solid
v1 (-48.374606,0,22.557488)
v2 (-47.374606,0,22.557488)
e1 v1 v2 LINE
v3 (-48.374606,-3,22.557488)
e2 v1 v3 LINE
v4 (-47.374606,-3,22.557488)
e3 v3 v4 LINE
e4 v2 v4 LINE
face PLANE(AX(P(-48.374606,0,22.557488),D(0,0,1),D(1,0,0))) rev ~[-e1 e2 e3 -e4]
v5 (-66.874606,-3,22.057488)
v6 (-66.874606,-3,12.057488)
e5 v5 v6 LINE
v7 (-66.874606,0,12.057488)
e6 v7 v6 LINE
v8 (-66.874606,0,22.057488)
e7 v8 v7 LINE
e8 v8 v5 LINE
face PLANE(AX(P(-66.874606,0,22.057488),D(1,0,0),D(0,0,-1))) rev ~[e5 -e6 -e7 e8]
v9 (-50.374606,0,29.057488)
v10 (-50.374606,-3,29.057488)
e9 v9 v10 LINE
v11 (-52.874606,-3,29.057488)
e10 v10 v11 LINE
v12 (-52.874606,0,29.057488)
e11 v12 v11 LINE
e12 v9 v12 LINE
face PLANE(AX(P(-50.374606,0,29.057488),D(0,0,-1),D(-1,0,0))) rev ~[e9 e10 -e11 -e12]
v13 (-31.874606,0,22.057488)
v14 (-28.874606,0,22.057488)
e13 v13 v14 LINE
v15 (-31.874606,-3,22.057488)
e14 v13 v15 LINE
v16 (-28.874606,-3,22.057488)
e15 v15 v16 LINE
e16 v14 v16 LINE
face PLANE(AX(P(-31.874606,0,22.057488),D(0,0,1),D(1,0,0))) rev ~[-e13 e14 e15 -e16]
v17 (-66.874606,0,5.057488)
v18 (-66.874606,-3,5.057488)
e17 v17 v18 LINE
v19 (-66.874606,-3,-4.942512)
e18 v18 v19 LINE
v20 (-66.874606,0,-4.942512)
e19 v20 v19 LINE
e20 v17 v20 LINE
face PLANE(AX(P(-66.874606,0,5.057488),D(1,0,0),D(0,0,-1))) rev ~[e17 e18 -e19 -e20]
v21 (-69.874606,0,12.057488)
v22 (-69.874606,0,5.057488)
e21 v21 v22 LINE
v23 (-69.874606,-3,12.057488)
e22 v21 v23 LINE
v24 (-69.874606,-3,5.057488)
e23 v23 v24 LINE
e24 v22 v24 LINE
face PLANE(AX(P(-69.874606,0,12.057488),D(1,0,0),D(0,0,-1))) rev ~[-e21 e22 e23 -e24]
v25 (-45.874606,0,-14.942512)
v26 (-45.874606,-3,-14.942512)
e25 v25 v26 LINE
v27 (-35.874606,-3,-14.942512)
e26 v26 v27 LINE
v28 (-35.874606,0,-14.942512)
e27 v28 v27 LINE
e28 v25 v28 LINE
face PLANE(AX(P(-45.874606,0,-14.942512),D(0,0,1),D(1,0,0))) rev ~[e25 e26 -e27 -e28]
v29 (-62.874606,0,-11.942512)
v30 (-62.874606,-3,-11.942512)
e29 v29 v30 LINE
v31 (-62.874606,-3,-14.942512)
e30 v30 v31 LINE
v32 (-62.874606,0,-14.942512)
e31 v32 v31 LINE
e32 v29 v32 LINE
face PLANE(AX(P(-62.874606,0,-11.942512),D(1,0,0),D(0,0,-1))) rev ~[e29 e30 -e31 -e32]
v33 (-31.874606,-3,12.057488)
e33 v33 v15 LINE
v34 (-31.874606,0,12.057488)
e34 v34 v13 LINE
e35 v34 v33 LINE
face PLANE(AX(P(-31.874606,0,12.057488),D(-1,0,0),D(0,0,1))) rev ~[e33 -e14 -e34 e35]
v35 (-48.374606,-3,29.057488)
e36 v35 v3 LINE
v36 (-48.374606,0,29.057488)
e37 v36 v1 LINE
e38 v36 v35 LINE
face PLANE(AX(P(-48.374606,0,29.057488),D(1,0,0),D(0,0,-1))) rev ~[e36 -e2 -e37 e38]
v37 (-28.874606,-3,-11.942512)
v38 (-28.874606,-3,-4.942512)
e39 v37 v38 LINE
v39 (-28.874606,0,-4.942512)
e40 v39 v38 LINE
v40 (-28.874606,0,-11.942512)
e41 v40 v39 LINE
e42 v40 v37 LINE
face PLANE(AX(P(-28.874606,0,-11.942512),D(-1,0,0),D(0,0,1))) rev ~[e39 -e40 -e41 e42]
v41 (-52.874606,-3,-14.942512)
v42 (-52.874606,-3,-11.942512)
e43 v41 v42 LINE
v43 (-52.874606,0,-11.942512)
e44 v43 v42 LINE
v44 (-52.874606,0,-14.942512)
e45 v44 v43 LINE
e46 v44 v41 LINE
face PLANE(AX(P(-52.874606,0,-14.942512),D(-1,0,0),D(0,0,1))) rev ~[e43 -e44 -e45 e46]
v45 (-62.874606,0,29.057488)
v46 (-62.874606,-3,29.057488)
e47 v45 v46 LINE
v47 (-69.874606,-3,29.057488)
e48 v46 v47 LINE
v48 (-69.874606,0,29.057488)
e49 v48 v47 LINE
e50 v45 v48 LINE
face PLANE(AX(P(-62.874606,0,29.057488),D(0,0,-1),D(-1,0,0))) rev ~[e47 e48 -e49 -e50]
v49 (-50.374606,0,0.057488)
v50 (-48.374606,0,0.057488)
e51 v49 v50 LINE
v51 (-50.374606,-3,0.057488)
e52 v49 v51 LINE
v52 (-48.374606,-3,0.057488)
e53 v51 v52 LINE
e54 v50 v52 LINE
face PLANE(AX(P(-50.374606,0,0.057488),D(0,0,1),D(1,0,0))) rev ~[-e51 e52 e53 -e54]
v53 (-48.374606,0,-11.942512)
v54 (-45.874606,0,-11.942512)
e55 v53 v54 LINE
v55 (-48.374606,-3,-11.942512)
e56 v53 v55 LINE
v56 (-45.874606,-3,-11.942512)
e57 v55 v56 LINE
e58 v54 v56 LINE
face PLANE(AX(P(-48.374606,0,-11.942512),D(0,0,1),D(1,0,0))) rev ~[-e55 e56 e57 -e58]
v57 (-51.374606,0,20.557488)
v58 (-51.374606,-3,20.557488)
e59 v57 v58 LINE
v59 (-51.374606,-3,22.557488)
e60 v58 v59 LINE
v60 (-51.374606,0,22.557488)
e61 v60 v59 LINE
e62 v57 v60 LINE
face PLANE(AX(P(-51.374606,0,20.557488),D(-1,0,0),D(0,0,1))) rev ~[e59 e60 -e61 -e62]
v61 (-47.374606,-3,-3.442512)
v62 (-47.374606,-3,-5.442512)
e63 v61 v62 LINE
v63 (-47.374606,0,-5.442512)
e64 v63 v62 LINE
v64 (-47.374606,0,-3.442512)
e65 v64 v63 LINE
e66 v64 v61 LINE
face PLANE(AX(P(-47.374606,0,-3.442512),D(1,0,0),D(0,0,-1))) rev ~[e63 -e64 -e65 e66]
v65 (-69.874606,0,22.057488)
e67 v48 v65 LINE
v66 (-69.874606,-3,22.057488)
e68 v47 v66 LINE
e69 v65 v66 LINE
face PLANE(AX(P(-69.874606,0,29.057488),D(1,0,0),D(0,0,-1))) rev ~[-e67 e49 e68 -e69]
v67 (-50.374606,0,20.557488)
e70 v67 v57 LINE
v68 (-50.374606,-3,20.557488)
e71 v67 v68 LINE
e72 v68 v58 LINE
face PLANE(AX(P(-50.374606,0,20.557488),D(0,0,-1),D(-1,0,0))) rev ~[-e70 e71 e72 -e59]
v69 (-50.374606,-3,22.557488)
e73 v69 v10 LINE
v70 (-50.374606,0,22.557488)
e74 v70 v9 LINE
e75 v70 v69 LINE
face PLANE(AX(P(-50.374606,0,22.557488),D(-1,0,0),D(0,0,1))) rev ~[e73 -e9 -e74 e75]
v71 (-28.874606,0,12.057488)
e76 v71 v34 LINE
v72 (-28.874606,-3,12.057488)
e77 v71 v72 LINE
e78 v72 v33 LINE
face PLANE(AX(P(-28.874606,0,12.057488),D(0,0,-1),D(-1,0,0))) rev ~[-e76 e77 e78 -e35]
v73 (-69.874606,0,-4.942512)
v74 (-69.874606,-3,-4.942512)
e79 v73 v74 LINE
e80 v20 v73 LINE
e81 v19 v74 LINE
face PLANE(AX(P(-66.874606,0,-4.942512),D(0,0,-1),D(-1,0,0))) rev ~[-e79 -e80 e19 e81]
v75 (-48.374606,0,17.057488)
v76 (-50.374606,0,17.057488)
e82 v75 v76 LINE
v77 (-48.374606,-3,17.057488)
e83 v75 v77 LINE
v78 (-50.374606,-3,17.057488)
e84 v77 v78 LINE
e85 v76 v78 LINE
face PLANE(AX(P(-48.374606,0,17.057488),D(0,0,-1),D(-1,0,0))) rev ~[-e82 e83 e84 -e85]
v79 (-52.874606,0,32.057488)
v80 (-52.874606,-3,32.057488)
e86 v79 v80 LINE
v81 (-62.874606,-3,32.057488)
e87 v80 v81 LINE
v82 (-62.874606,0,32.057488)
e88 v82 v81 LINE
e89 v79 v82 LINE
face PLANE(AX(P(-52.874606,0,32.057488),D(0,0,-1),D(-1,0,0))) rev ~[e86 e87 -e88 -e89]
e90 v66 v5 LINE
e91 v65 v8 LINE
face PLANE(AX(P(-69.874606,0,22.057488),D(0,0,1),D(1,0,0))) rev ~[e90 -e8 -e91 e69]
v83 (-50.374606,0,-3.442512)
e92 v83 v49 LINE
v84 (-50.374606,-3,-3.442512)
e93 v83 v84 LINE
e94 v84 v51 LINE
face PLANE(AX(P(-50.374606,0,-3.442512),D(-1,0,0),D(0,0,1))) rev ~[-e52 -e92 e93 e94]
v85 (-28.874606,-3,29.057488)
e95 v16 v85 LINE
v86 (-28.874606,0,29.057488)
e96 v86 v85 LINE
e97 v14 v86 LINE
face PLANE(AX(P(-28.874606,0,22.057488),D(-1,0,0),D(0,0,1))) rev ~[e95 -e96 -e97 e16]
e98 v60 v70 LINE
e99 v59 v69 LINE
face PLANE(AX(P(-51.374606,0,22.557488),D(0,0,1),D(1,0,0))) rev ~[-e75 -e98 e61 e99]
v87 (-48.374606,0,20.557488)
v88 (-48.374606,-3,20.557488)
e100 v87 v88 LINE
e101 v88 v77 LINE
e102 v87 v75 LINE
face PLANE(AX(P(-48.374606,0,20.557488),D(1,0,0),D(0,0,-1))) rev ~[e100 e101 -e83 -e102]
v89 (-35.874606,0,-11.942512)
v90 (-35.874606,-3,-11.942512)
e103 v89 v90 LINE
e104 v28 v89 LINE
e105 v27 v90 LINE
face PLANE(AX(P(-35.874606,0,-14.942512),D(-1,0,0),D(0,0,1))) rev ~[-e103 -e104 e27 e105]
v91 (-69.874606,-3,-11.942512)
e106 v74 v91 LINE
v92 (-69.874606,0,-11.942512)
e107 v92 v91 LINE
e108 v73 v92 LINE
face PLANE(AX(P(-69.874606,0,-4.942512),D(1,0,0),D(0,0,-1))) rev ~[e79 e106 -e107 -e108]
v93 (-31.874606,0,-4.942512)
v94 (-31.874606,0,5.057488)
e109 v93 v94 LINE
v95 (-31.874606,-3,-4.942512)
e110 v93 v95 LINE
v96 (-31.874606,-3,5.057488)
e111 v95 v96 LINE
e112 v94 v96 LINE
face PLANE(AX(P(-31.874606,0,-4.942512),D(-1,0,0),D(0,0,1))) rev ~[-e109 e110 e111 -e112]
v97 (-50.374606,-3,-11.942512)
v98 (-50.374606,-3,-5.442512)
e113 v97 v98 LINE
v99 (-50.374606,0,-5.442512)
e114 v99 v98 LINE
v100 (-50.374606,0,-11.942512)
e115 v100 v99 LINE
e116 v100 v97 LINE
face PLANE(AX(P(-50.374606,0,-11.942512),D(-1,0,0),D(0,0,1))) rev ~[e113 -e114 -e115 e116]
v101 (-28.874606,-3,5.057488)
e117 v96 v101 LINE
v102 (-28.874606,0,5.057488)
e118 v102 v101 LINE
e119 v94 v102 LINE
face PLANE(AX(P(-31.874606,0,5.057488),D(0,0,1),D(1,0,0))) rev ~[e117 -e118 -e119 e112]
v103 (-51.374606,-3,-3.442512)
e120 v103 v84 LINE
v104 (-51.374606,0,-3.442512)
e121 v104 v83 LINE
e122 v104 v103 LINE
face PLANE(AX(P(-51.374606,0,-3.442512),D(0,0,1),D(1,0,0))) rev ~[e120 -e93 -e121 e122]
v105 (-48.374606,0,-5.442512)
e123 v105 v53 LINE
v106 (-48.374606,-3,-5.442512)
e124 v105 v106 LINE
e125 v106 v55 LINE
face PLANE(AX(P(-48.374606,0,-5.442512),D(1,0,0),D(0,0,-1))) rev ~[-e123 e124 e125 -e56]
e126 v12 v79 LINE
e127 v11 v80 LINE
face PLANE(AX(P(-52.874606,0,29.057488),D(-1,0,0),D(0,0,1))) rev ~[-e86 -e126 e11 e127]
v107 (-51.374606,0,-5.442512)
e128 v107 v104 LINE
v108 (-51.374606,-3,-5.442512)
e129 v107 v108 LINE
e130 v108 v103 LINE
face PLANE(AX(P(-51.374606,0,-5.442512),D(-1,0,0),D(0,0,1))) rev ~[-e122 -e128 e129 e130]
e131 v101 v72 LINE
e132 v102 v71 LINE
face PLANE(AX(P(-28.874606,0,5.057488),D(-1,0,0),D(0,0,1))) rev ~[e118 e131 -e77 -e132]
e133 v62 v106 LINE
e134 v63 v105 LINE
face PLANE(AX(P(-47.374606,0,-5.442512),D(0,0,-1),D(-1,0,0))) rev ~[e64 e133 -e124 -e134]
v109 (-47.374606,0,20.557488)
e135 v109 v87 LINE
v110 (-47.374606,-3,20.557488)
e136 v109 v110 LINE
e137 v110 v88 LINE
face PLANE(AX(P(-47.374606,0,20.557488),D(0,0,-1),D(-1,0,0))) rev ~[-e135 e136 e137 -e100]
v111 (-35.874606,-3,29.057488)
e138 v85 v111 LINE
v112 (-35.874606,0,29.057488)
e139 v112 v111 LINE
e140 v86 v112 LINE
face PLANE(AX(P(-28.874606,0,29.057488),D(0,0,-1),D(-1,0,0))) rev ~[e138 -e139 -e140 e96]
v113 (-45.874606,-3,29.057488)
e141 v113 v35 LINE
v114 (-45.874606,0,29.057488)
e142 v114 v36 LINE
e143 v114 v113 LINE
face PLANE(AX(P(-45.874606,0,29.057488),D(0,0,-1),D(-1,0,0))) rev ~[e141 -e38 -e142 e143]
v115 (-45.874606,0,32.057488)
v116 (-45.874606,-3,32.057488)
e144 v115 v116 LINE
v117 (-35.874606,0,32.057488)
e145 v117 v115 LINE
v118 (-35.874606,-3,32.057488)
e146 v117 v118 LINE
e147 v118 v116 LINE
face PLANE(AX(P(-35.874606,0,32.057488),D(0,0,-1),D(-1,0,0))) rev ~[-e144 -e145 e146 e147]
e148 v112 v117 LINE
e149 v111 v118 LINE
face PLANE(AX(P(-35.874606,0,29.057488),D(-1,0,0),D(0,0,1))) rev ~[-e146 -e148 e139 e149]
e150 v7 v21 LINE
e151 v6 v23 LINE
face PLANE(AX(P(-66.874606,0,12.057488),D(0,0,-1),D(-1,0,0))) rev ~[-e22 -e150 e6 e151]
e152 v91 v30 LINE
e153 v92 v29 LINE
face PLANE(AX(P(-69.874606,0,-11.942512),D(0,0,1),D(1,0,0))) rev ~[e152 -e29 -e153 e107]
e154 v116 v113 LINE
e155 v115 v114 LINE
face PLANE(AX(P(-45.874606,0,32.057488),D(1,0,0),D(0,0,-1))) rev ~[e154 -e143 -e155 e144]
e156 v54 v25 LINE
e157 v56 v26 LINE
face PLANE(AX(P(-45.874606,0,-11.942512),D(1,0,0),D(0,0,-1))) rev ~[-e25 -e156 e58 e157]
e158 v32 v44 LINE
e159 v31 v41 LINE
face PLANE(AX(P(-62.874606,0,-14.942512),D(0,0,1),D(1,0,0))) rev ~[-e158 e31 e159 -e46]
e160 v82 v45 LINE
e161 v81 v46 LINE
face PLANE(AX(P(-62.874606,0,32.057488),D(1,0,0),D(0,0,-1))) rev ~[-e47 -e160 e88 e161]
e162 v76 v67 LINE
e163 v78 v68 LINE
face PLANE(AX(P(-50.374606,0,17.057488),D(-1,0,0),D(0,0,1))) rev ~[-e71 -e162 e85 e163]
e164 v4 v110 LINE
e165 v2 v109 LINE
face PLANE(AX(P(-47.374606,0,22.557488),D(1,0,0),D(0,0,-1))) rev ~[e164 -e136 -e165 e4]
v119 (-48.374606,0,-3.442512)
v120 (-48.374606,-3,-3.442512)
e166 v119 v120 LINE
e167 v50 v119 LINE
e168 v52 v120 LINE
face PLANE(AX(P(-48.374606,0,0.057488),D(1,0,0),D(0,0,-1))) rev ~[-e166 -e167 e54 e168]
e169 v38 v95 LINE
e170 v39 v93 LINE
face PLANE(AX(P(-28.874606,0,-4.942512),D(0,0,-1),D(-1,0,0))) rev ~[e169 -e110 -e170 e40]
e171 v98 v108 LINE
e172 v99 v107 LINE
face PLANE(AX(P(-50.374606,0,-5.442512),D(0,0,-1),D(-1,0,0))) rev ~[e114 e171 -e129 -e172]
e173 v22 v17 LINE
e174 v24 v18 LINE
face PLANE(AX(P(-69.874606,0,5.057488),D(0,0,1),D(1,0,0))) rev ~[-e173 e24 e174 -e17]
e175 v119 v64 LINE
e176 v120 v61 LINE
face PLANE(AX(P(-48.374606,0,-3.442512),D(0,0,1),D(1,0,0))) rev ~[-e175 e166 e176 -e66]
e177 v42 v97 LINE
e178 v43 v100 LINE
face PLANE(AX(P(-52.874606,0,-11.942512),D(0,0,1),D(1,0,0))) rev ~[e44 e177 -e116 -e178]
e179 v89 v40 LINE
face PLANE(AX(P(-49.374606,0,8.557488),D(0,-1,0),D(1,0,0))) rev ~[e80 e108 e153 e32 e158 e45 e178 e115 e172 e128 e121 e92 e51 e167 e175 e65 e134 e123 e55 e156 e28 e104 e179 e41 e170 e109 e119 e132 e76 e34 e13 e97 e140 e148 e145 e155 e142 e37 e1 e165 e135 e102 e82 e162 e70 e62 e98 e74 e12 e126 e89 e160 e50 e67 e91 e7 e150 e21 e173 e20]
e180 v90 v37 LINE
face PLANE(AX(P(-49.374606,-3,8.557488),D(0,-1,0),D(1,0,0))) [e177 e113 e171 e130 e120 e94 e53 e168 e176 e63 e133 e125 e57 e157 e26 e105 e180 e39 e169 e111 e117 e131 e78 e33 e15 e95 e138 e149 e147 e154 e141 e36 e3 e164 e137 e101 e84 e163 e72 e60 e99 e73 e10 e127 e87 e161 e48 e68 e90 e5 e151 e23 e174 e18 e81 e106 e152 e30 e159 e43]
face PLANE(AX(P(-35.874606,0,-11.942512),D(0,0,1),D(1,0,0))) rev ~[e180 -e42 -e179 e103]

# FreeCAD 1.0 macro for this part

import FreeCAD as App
import Part
import Sketcher

V = App.Vector


def add_polygon(sketch, points):
    """Adds a closed chain of lines whose ends are joined by coincident constraints."""
    first, n = sketch.GeometryCount, len(points)
    for a, b in zip(points, points[1:] + points[:1]):
        sketch.addGeometry(Part.LineSegment(App.Vector(*a, 0), App.Vector(*b, 0)), False)
    for i in range(n):
        sketch.addConstraint(Sketcher.Constraint("Coincident", first + i, 2, first + (i + 1) % n, 1))

doc = App.newDocument("Part")
body = doc.addObject("PartDesign::Body", "Body")

# Sketch on XZ plane
sketch1 = body.newObject("Sketcher::SketchObject", "Sketch")
sketch1.AttachmentSupport = (doc.getObject("XZ_Plane"), [""])
sketch1.MapMode = "FlatFace"
add_polygon(sketch1, [(-48.4, 20.6), (-48.4, 17.1), (-50.4, 17.1), (-50.4, 20.6), (-51.4, 20.6), (-51.4, 22.6), (-50.4, 22.6), (-50.4, 29.1), (-52.9, 29.1), (-52.9, 32.1), (-62.9, 32.1), (-62.9, 29.1), (-69.9, 29.1), (-69.9, 22.1), (-66.9, 22.1), (-66.9, 12.1), (-69.9, 12.1), (-69.9, 5.1), (-66.9, 5.1), (-66.9, -4.9), (-69.9, -4.9), (-69.9, -11.9), (-62.9, -11.9), (-62.9, -14.9), (-52.9, -14.9), (-52.9, -11.9), (-50.4, -11.9), (-50.4, -5.4), (-51.4, -5.4), (-51.4, -3.4), (-50.4, -3.4), (-50.4, 0.1), (-48.4, 0.1), (-48.4, -3.4), (-47.4, -3.4), (-47.4, -5.4), (-48.4, -5.4), (-48.4, -11.9), (-45.9, -11.9), (-45.9, -14.9), (-35.9, -14.9), (-35.9, -11.9), (-28.9, -11.9), (-28.9, -4.9), (-31.9, -4.9), (-31.9, 5.1), (-28.9, 5.1), (-28.9, 12.1), (-31.9, 12.1), (-31.9, 22.1), (-28.9, 22.1), (-28.9, 29.1), (-35.9, 29.1), (-35.9, 32.1), (-45.9, 32.1), (-45.9, 29.1), (-48.4, 29.1), (-48.4, 22.6), (-47.4, 22.6), (-47.4, 20.6)])  # lines 0-59
sketch1.addConstraint([
    Sketcher.Constraint("Vertical", 0),
    Sketcher.Constraint("Horizontal", 1),
    Sketcher.Constraint("Vertical", 2),
    Sketcher.Constraint("Horizontal", 3),
    Sketcher.Constraint("Vertical", 4),
    Sketcher.Constraint("Horizontal", 5),
    Sketcher.Constraint("Vertical", 6),
    Sketcher.Constraint("Horizontal", 7),
    Sketcher.Constraint("Vertical", 8),
    Sketcher.Constraint("Horizontal", 9),
    Sketcher.Constraint("Vertical", 10),
    Sketcher.Constraint("Horizontal", 11),
    Sketcher.Constraint("Vertical", 12),
    Sketcher.Constraint("Horizontal", 13),
    Sketcher.Constraint("Vertical", 14),
    Sketcher.Constraint("Horizontal", 15),
    Sketcher.Constraint("Vertical", 16),
    Sketcher.Constraint("Horizontal", 17),
    Sketcher.Constraint("Vertical", 18),
    Sketcher.Constraint("Horizontal", 19),
    Sketcher.Constraint("Vertical", 20),
    Sketcher.Constraint("Horizontal", 21),
    Sketcher.Constraint("Vertical", 22),
    Sketcher.Constraint("Horizontal", 23),
    Sketcher.Constraint("Vertical", 24),
    Sketcher.Constraint("Horizontal", 25),
    Sketcher.Constraint("Vertical", 26),
    Sketcher.Constraint("Horizontal", 27),
    Sketcher.Constraint("Vertical", 28),
    Sketcher.Constraint("Horizontal", 29),
    Sketcher.Constraint("Vertical", 30),
    Sketcher.Constraint("Horizontal", 31),
    Sketcher.Constraint("Vertical", 32),
    Sketcher.Constraint("Horizontal", 33),
    Sketcher.Constraint("Vertical", 34),
    Sketcher.Constraint("Horizontal", 35),
    Sketcher.Constraint("Vertical", 36),
    Sketcher.Constraint("Horizontal", 37),
    Sketcher.Constraint("Vertical", 38),
    Sketcher.Constraint("Horizontal", 39),
    Sketcher.Constraint("Vertical", 40),
    Sketcher.Constraint("Horizontal", 41),
    Sketcher.Constraint("Vertical", 42),
    Sketcher.Constraint("Horizontal", 43),
    Sketcher.Constraint("Vertical", 44),
    Sketcher.Constraint("Horizontal", 45),
    Sketcher.Constraint("Vertical", 46),
    Sketcher.Constraint("Horizontal", 47),
    Sketcher.Constraint("Vertical", 48),
    Sketcher.Constraint("Horizontal", 49),
    Sketcher.Constraint("Vertical", 50),
    Sketcher.Constraint("Horizontal", 51),
    Sketcher.Constraint("Vertical", 52),
    Sketcher.Constraint("Horizontal", 53),
    Sketcher.Constraint("Vertical", 54),
    Sketcher.Constraint("Horizontal", 55),
    Sketcher.Constraint("Vertical", 56),
    Sketcher.Constraint("Horizontal", 57),
    Sketcher.Constraint("Vertical", 58),
    Sketcher.Constraint("Horizontal", 59),
    Sketcher.Constraint("Horizontal", 7, 2, 10, 2),
    Sketcher.Constraint("Horizontal", 21, 2, 24, 2),
    Sketcher.Constraint("Horizontal", 29, 2, 32, 2),
    Sketcher.Constraint("Horizontal", 27, 2, 34, 2),
    Sketcher.Constraint("Horizontal", 25, 2, 36, 2),
    Sketcher.Constraint("Horizontal", 23, 2, 38, 2),
    Sketcher.Constraint("Horizontal", 37, 2, 40, 2),
    Sketcher.Constraint("Horizontal", 19, 2, 42, 2),
    Sketcher.Constraint("Horizontal", 17, 2, 44, 2),
    Sketcher.Constraint("Horizontal", 15, 2, 46, 2),
    Sketcher.Constraint("Horizontal", 13, 2, 48, 2),
    Sketcher.Constraint("Horizontal", 11, 2, 50, 2),
    Sketcher.Constraint("Horizontal", 9, 2, 52, 2),
    Sketcher.Constraint("Horizontal", 51, 2, 54, 2),
    Sketcher.Constraint("Horizontal", 5, 2, 56, 2),
    Sketcher.Constraint("Horizontal", 3, 2, 58, 2),
    Sketcher.Constraint("Vertical", 2, 2, 5, 2),
    Sketcher.Constraint("Vertical", 12, 2, 15, 2),
    Sketcher.Constraint("Vertical", 14, 2, 17, 2),
    Sketcher.Constraint("Vertical", 16, 2, 19, 2),
    Sketcher.Constraint("Vertical", 10, 2, 21, 2),
    Sketcher.Constraint("Vertical", 8, 2, 23, 2),
    Sketcher.Constraint("Vertical", 6, 2, 25, 2),
    Sketcher.Constraint("Vertical", 4, 2, 27, 2),
    Sketcher.Constraint("Vertical", 26, 2, 29, 2),
    Sketcher.Constraint("Vertical", 0, 2, 31, 2),
    Sketcher.Constraint("Vertical", 32, 2, 35, 2),
    Sketcher.Constraint("Vertical", 42, 2, 45, 2),
    Sketcher.Constraint("Vertical", 44, 2, 47, 2),
    Sketcher.Constraint("Vertical", 46, 2, 49, 2),
    Sketcher.Constraint("Vertical", 40, 2, 51, 2),
    Sketcher.Constraint("Vertical", 38, 2, 53, 2),
    Sketcher.Constraint("Vertical", 36, 2, 55, 2),
    Sketcher.Constraint("Vertical", 34, 2, 57, 2),
    Sketcher.Constraint("Equal", 29, 33),
    Sketcher.Constraint("Equal", 25, 37),
    Sketcher.Constraint("Equal", 23, 39),
    Sketcher.Constraint("Equal", 21, 41),
    Sketcher.Constraint("Equal", 19, 43),
    Sketcher.Constraint("Equal", 31, 4),
    Sketcher.Constraint("Equal", 49, 8),
    Sketcher.Constraint("Equal", 51, 12),
    Sketcher.Constraint("Equal", 53, 14),
    Sketcher.Constraint("Equal", 12, 16),
    Sketcher.Constraint("Equal", 14, 18),
    Sketcher.Constraint("Equal", 16, 20),
    Sketcher.Constraint("Equal", 10, 22),
    Sketcher.Constraint("Equal", 6, 26),
    Sketcher.Constraint("Equal", 4, 28),
    Sketcher.Constraint("Equal", 2, 30),
    Sketcher.Constraint("DistanceX", 1, 2, 1, 1, 2.0),
    Sketcher.Constraint("DistanceX", 3, 2, 3, 1, 1.0),
    Sketcher.Constraint("DistanceX", 9, 2, 9, 1, 10.0),
    Sketcher.Constraint("DistanceX", 11, 2, 11, 1, 7.0),
    Sketcher.Constraint("DistanceX", 13, 1, 13, 2, 3.0),
    Sketcher.Constraint("DistanceX", 7, 2, 7, 1, 2.5),
    Sketcher.Constraint("DistanceY", 0, 2, 0, 1, 3.5),
    Sketcher.Constraint("DistanceY", 6, 1, 6, 2, 6.5),
    Sketcher.Constraint("DistanceY", -1, 1, 16, 2, 5.057488),
    Sketcher.Constraint("DistanceX", 0, 2, -1, 1, 48.374606),
])
pad1 = body.newObject("PartDesign::Pad", "Pad")
pad1.Profile = sketch1
pad1.Length = 3

doc.recompute()
